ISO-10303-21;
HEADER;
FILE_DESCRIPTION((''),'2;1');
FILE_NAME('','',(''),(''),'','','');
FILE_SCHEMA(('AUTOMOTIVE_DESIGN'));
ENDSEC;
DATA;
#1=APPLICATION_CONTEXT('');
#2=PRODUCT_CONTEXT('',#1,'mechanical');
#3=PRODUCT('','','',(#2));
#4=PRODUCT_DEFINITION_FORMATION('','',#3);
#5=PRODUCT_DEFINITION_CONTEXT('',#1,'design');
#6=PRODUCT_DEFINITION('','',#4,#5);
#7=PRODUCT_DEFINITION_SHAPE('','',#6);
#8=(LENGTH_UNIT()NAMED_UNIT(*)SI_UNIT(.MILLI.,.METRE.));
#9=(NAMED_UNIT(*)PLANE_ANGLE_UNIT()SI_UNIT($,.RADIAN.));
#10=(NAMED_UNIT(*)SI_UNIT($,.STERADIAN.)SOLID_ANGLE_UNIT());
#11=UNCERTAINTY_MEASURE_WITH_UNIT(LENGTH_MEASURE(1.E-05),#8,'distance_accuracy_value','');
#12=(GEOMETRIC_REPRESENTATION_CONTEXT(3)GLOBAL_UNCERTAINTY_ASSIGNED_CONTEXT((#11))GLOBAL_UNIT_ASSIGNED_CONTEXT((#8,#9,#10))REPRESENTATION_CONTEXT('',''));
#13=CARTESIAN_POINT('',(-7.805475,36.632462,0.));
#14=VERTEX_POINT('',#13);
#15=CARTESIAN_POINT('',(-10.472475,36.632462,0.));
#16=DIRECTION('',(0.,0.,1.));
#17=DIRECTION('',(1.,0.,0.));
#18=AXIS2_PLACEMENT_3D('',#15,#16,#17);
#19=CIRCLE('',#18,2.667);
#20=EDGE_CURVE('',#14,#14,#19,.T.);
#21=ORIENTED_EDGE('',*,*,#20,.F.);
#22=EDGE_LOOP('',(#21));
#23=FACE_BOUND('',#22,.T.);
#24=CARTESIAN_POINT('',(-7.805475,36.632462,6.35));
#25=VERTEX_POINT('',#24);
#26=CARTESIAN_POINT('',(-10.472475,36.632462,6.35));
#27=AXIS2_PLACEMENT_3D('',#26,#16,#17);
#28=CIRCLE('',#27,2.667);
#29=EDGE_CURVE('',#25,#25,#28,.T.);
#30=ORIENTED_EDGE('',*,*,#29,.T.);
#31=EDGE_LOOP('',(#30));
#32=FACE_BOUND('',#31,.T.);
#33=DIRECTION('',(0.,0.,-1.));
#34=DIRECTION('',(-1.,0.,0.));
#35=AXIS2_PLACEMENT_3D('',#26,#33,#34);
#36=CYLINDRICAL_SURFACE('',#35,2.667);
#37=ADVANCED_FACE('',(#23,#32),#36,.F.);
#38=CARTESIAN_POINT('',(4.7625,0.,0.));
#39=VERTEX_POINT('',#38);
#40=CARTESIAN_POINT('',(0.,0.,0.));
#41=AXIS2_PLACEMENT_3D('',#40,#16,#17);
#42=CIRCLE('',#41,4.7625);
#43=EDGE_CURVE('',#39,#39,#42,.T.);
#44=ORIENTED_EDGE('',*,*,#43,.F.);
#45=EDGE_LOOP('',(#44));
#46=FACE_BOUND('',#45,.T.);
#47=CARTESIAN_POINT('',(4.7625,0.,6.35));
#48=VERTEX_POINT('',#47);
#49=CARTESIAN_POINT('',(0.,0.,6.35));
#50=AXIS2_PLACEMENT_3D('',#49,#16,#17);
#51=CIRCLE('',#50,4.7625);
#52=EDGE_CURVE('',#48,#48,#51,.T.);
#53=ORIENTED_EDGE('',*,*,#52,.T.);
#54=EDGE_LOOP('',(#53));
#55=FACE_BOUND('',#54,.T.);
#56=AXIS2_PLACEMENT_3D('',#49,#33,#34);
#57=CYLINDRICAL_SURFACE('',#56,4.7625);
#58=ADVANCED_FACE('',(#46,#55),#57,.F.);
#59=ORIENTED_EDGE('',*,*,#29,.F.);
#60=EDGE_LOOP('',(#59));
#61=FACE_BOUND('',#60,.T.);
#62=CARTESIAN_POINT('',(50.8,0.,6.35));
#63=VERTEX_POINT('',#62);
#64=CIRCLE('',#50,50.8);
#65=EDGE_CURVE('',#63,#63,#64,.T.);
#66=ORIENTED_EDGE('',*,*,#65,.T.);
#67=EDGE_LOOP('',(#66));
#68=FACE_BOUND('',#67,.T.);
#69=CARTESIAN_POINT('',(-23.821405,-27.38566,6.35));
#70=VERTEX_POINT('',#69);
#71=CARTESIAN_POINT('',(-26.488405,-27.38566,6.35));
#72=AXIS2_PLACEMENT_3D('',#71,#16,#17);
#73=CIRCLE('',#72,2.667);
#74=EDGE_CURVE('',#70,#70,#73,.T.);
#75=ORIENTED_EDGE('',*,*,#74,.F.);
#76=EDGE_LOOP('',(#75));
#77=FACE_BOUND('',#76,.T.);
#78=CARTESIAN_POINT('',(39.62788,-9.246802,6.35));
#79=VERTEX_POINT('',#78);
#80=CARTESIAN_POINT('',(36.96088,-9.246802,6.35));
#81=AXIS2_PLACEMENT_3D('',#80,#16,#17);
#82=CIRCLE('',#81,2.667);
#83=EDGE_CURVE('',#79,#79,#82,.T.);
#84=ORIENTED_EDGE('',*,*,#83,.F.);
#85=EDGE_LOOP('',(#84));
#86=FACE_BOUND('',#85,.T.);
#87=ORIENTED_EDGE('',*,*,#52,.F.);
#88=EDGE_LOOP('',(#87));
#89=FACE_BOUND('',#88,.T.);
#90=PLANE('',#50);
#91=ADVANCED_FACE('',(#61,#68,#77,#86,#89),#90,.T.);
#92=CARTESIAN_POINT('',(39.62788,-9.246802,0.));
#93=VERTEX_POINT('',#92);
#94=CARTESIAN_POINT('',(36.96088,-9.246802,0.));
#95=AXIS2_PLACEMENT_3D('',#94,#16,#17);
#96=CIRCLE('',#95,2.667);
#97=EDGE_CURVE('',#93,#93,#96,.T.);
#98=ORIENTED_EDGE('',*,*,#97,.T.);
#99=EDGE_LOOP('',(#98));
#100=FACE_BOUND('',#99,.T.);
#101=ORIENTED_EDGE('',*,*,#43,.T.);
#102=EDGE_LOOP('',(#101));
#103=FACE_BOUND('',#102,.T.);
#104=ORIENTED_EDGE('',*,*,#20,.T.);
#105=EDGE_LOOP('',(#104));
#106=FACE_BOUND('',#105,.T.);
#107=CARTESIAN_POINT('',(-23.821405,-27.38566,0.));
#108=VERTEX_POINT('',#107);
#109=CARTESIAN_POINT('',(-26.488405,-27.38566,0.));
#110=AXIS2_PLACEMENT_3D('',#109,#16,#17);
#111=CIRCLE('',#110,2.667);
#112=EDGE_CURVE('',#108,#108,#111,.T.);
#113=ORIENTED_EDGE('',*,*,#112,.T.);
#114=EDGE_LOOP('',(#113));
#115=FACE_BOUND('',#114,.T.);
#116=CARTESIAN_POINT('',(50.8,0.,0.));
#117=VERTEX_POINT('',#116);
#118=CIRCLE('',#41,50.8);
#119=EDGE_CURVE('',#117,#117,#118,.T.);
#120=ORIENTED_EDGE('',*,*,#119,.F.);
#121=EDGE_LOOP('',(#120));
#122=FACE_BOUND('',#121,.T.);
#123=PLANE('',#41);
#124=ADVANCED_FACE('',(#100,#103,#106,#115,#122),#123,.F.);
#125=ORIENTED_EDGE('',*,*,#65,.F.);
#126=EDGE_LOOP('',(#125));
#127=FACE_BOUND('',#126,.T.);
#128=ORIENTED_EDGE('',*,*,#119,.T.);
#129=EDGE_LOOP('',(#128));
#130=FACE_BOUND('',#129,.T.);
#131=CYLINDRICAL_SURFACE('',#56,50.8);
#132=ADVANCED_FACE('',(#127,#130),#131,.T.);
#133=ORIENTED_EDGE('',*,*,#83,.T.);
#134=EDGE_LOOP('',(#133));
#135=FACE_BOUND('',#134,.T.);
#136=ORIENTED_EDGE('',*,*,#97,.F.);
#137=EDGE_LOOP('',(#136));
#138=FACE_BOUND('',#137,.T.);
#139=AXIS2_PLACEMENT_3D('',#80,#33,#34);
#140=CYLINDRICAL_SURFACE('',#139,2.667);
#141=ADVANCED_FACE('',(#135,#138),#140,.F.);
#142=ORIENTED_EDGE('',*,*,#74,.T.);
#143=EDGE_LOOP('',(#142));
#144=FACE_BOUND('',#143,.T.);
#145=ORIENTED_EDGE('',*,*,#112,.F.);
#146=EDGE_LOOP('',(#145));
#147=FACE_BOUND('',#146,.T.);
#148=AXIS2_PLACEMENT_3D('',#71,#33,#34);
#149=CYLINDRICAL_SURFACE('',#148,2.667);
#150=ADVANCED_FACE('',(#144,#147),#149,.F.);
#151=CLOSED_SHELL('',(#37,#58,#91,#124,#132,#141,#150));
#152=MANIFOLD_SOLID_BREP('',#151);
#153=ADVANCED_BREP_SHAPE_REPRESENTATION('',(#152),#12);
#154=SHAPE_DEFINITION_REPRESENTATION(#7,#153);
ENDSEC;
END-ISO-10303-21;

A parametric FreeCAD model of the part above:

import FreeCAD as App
import Part
import Sketcher
from FreeCAD import Vector
Q = App.Units.Quantity

doc = App.newDocument("Part")
params = doc.addObject("Spreadsheet::Sheet", "Params")
for row, (alias, value) in enumerate([
    ("sketch1_diameter", "4 in"),
    ("sketch1_diameter2", "0.21 in"),
    ("sketch1_diameter3", "0.375 in"),
    ("pad1_length", "0.25 in"),
], start=1):
    params.set(f"A{row}", alias)
    params.set(f"B{row}", "=" + value)
    params.setAlias(f"B{row}", alias)

body = doc.addObject("PartDesign::Body", "Body")

sketch1 = doc.addObject("Sketcher::SketchObject", "Sketch")
body.addObject(sketch1)
sketch1.AttachmentSupport = (doc.XY_Plane, [""])
sketch1.MapMode = "FlatFace"
sketch1.addGeometry([
    Part.Circle(Vector(0, 0, 0), Vector(0, 0, 1), 50.8),
    Part.Circle(Vector(-26.488405, -27.38566, 0), Vector(0, 0, 1), 2.667),
    Part.Circle(Vector(0, 0, 0), Vector(0, 0, 1), 4.7625),
    Part.Circle(Vector(36.96088, -9.246802, 0), Vector(0, 0, 1), 2.667),
    Part.Circle(Vector(-10.472475, 36.632462, 0), Vector(0, 0, 1), 2.667),
], False)
sketch1.addConstraint([
    Sketcher.Constraint("Coincident", 0, 3, -1, 1),
    Sketcher.Constraint("Coincident", 2, 3, -1, 1),
    Sketcher.Constraint("Equal", 1, 3),
    Sketcher.Constraint("Equal", 3, 4),
    Sketcher.Constraint("Diameter", 0, Q("4 in")),
    Sketcher.Constraint("Diameter", 1, Q("0.21 in")),
    Sketcher.Constraint("Diameter", 2, Q("0.375 in")),
    Sketcher.Constraint("DistanceY", 3, 3, -1, 1, 9.246802),
    Sketcher.Constraint("DistanceY", 1, 3, -1, 1, 27.38566),
    Sketcher.Constraint("DistanceX", -1, 1, 3, 3, 36.96088),
    Sketcher.Constraint("DistanceX", 1, 3, 4, 3, 16.015931),
    Sketcher.Constraint("DistanceX", 1, 3, -1, 1, 26.488405),
    Sketcher.Constraint("DistanceY", -1, 1, 4, 3, 36.632462),
])
sketch1.setExpression("Constraints[4]", "Params.sketch1_diameter")
sketch1.setExpression("Constraints[5]", "Params.sketch1_diameter2")
sketch1.setExpression("Constraints[6]", "Params.sketch1_diameter3")
pad1 = doc.addObject("PartDesign::Pad", "Pad")
body.addObject(pad1)
pad1.Profile = sketch1
pad1.setExpression("Length", "Params.pad1_length")

doc.recompute()
